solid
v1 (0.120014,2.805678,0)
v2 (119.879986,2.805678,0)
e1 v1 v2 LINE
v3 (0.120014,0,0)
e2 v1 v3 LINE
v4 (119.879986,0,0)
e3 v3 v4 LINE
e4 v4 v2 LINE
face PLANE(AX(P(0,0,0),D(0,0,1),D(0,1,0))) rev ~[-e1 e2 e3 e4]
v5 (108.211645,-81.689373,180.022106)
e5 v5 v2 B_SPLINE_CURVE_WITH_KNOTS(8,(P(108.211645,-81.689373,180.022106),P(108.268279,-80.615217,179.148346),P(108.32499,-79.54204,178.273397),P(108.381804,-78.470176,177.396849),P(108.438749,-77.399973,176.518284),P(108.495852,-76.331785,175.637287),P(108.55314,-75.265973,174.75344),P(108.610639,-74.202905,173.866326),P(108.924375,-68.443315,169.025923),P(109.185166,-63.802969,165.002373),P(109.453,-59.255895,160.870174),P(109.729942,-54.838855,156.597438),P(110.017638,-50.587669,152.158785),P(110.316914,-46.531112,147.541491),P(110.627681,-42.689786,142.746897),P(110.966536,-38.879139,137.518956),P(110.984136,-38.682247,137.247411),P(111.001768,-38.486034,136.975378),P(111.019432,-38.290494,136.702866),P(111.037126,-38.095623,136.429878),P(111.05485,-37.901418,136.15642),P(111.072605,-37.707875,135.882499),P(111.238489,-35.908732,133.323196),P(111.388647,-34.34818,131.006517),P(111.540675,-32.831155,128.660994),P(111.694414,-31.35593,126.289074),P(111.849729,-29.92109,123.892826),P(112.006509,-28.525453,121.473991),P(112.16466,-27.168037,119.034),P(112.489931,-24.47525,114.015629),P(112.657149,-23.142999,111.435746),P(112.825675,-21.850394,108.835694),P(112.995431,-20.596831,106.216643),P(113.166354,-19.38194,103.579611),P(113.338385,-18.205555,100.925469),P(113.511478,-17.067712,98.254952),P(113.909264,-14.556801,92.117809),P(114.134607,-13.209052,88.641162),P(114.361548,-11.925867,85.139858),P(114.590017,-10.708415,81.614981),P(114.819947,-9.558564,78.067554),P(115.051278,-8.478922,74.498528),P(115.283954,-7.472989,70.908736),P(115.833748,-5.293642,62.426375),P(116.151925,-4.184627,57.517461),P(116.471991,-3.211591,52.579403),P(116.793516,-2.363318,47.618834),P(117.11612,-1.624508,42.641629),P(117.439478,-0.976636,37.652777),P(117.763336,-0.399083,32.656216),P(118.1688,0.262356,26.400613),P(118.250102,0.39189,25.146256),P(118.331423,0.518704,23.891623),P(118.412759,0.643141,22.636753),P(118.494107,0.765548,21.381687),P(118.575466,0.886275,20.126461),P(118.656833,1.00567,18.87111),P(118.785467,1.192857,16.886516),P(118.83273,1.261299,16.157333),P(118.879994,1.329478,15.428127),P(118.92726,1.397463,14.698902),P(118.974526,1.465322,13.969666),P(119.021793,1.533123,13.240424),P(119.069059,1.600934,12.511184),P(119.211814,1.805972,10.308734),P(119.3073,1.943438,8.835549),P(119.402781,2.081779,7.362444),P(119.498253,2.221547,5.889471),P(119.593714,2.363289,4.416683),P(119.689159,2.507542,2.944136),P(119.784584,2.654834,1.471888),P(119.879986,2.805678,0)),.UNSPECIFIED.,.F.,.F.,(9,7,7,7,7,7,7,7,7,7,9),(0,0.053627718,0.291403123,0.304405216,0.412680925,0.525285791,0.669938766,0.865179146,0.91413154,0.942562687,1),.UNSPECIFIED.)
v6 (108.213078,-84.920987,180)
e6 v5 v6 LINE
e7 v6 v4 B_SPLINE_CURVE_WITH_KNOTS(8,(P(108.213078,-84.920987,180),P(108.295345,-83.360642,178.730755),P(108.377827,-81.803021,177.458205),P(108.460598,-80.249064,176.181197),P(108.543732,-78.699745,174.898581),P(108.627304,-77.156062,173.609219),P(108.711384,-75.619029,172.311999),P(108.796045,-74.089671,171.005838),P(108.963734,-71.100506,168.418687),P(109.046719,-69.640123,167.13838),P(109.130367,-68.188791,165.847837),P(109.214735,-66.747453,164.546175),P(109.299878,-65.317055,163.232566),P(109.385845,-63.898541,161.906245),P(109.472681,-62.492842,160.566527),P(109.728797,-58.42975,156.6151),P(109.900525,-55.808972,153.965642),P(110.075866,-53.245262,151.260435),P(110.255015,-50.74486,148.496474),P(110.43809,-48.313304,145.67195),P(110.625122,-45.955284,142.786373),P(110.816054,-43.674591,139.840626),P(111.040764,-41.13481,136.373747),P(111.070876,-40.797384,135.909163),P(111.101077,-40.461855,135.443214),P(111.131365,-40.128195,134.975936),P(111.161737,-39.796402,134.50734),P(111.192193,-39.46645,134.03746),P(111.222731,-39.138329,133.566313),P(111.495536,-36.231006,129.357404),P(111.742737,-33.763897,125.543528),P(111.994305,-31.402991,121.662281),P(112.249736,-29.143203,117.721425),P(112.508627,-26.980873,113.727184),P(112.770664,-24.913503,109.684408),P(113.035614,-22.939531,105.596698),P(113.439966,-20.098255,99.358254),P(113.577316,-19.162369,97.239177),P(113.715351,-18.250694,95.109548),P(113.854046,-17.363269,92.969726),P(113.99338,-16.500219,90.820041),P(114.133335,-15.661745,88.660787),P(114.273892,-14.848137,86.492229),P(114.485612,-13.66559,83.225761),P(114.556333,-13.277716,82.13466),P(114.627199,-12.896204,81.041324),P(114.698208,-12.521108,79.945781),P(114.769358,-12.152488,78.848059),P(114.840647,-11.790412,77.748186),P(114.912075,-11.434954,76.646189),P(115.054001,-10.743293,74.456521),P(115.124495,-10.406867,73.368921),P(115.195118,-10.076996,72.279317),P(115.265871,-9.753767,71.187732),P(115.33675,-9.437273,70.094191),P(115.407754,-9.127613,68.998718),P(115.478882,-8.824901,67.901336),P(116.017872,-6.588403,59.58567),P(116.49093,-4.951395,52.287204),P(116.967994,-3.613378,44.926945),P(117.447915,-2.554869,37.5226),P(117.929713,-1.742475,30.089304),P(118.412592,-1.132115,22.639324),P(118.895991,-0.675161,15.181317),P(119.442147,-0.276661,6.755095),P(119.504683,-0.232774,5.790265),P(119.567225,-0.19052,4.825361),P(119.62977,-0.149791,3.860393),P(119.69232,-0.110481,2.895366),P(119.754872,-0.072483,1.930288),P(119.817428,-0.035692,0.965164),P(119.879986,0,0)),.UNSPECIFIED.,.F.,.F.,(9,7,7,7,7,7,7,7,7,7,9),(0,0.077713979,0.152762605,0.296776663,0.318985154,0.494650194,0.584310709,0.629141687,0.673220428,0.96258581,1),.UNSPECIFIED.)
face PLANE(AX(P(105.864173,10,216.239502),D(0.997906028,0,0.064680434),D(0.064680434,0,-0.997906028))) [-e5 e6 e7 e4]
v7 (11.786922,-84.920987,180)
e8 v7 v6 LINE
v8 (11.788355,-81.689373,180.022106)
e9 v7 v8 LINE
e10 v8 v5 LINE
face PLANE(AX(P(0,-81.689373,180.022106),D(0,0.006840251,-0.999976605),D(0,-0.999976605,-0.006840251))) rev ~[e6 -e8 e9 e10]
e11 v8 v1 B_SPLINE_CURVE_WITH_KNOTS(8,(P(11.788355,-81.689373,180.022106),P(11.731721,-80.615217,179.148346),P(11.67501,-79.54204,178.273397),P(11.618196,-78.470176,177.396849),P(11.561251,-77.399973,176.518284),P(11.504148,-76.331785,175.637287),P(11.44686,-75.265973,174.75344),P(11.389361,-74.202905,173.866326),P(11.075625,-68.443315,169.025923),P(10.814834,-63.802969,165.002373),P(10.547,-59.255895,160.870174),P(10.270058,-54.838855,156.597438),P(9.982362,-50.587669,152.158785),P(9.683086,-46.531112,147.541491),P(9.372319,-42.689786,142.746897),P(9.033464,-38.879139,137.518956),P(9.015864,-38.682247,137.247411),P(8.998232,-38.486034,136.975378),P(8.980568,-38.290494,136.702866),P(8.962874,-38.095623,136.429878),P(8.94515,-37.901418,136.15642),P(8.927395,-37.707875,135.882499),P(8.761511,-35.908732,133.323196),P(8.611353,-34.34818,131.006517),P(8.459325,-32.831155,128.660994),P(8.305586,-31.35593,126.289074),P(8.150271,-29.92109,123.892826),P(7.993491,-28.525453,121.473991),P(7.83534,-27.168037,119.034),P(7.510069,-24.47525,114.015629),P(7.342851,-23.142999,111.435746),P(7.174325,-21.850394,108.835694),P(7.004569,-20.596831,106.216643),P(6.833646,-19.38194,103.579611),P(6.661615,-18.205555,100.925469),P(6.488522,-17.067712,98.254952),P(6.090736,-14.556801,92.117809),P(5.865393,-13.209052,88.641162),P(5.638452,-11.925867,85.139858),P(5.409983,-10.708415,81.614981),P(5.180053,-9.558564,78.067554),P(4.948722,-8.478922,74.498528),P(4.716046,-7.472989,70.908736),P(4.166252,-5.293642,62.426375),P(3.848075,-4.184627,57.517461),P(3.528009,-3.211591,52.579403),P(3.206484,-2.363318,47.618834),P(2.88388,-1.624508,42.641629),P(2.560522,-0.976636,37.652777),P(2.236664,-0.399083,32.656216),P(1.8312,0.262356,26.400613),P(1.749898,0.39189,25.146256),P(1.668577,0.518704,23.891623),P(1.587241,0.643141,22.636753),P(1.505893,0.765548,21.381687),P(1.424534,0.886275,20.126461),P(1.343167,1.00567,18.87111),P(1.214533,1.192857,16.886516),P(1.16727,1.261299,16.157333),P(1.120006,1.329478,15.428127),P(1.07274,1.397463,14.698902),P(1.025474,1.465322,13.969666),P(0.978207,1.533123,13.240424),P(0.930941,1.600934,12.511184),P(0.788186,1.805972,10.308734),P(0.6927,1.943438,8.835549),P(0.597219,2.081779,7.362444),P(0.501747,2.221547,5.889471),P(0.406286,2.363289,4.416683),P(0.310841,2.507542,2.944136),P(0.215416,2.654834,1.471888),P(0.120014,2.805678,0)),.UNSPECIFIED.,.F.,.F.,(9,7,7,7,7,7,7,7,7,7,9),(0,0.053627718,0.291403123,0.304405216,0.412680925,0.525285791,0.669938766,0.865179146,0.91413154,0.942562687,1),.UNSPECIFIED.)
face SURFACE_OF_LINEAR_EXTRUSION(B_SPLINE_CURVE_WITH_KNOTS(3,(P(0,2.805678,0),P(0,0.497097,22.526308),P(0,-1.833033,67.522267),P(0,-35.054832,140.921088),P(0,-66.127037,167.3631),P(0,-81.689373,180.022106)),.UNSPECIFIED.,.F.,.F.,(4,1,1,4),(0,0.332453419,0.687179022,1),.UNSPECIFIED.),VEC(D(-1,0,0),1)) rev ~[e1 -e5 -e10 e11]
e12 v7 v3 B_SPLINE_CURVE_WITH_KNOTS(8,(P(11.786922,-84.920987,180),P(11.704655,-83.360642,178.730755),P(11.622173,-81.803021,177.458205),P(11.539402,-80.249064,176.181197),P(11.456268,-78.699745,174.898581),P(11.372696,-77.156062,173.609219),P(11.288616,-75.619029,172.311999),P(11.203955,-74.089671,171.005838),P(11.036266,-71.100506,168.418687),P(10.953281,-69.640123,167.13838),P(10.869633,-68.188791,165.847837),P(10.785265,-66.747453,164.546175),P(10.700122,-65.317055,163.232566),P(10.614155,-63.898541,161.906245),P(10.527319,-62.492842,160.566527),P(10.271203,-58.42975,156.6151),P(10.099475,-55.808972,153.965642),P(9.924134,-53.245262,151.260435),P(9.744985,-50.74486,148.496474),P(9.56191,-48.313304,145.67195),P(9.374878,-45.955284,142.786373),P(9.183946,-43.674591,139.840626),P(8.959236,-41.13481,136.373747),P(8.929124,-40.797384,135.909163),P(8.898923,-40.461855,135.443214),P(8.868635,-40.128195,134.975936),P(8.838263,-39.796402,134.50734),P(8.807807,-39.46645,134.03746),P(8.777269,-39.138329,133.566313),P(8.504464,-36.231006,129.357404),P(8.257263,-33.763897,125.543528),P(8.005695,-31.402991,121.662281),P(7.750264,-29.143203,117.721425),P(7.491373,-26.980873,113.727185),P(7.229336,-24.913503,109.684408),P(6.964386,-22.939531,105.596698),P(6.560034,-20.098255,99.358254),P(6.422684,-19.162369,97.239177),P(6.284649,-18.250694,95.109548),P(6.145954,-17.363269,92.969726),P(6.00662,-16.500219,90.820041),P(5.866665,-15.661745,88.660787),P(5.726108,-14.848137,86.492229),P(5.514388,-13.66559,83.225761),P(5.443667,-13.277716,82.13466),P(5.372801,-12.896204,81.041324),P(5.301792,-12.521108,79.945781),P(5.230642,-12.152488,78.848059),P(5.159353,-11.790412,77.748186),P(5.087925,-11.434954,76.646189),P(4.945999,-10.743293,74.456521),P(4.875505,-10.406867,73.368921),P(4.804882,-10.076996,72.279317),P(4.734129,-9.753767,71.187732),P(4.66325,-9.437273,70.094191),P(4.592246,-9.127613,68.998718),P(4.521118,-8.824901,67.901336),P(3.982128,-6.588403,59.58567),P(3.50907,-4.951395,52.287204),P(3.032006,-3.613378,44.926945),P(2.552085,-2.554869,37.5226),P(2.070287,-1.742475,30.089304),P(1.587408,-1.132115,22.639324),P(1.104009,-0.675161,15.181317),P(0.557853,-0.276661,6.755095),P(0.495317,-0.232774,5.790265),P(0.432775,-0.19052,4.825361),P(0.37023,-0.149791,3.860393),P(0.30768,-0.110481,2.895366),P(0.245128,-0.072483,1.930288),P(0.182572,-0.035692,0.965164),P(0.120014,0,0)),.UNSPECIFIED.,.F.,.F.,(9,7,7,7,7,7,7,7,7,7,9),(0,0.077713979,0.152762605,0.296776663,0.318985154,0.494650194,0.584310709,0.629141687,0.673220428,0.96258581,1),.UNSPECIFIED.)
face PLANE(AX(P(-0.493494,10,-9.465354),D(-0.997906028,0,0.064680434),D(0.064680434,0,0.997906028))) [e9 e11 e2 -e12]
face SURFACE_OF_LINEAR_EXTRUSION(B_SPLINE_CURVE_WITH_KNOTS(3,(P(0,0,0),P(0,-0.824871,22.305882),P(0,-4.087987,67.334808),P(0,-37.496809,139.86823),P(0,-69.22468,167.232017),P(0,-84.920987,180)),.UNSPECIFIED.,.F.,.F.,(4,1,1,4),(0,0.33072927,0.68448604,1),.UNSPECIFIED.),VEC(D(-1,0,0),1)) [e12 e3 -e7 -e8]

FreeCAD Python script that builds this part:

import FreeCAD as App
import Part
import Sketcher
from FreeCAD import Vector
Q = App.Units.Quantity

doc = App.newDocument("Part")
body = doc.addObject("PartDesign::Body", "Body")

sketch1 = body.newObject("Sketcher::SketchObject", "Sketch")
sketch1.AttachmentSupport = (doc.getObject("YZ_Plane"), [""])
sketch1.MapMode = "FlatFace"
sketch1.addGeometry(Part.BSplineCurve([Vector(0, 0, 0), Vector(-0.824871, 22.305882, 0), Vector(-4.087987, 67.334808, 0), Vector(-37.496809, 139.86823, 0), Vector(-69.22468, 167.232017, 0), Vector(-84.920987, 180, 0)], [4, 1, 1, 4], [0, 0.33072927, 0.68448604, 1], False, 3, [1, 1, 1, 1, 1, 1], False), False)
sketch1.addGeometry(Part.LineSegment(Vector(0, 0, 0), Vector(2.805678, 0, 0)), False)
sketch1.addGeometry(Part.BSplineCurve([Vector(2.805678, 0, 0), Vector(0.497097, 22.526308, 0), Vector(-1.833033, 67.522267, 0), Vector(-35.054832, 140.921088, 0), Vector(-66.127037, 167.3631, 0), Vector(-81.689373, 180.022106, 0)], [4, 1, 1, 4], [0, 0.332453419, 0.687179022, 1], False, 3, [1, 1, 1, 1, 1, 1], False), False)
sketch1.addGeometry(Part.LineSegment(Vector(-81.689373, 180.022106, 0), Vector(-84.920987, 180, 0)), False)
sketch1.addConstraint(Sketcher.Constraint("Block", 0))
sketch1.addConstraint(Sketcher.Constraint("Block", 2))
sketch1.addConstraint(Sketcher.Constraint("Coincident", 0, 1, 1, 1))
sketch1.addConstraint(Sketcher.Constraint("Coincident", 1, 2, 2, 1))
sketch1.addConstraint(Sketcher.Constraint("Coincident", 2, 2, 3, 1))
sketch1.addConstraint(Sketcher.Constraint("Coincident", 3, 2, 0, 2))
pad1 = body.newObject("PartDesign::Pad", "Pad")
pad1.Profile = sketch1
pad1.Length = 120

sketch2 = body.newObject("Sketcher::SketchObject", "Sketch001")
sketch2.AttachmentSupport = (doc.getObject("XZ_Plane"), [""])
sketch2.MapMode = "FlatFace"
sketch2.AttachmentOffset = App.Placement(Vector(0, 0, -10), App.Rotation())
sketch2.addGeometry(Part.LineSegment(Vector(106, 216, 0), Vector(120, -9, 0)), False)
sketch2.addGeometry(Part.LineSegment(Vector(120, -9, 0), Vector(140, -6, 0)), False)
sketch2.addGeometry(Part.LineSegment(Vector(140, -6, 0), Vector(140, 216, 0)), False)
sketch2.addGeometry(Part.LineSegment(Vector(140, 216, 0), Vector(106, 216, 0)), False)
sketch2.addGeometry(Part.LineSegment(Vector(-20, -6, 0), Vector(0, -9, 0)), False)
sketch2.addGeometry(Part.LineSegment(Vector(0, -9, 0), Vector(14, 216, 0)), False)
sketch2.addGeometry(Part.LineSegment(Vector(14, 216, 0), Vector(-20, 216, 0)), False)
sketch2.addGeometry(Part.LineSegment(Vector(-20, 216, 0), Vector(-20, -6, 0)), False)
sketch2.addConstraint(Sketcher.Constraint("Coincident", 0, 2, 1, 1))
sketch2.addConstraint(Sketcher.Constraint("Coincident", 1, 2, 2, 1))
sketch2.addConstraint(Sketcher.Constraint("Coincident", 2, 2, 3, 1))
sketch2.addConstraint(Sketcher.Constraint("Coincident", 3, 2, 0, 1))
sketch2.addConstraint(Sketcher.Constraint("Coincident", 4, 2, 5, 1))
sketch2.addConstraint(Sketcher.Constraint("Coincident", 5, 2, 6, 1))
sketch2.addConstraint(Sketcher.Constraint("Coincident", 6, 2, 7, 1))
sketch2.addConstraint(Sketcher.Constraint("Coincident", 7, 2, 4, 1))
sketch2.addConstraint(Sketcher.Constraint("Vertical", 2))
sketch2.addConstraint(Sketcher.Constraint("Horizontal", 3))
sketch2.addConstraint(Sketcher.Constraint("Horizontal", 6))
sketch2.addConstraint(Sketcher.Constraint("Vertical", 7))
sketch2.addConstraint(Sketcher.Constraint("Horizontal", 0, 2, 4, 2))
sketch2.addConstraint(Sketcher.Constraint("Horizontal", 3, 2, 5, 2))
sketch2.addConstraint(Sketcher.Constraint("Horizontal", 1, 2, 7, 2))
sketch2.addConstraint(Sketcher.Constraint("Equal", 3, 6))
sketch2.addConstraint(Sketcher.Constraint("Equal", 1, 4))
sketch2.addConstraint(Sketcher.Constraint("DistanceX", -1, 1, 1, 2, Q("140 mm")))
sketch2.addConstraint(Sketcher.Constraint("DistanceX", 6, 2, -1, 1, Q("20 mm")))
sketch2.addConstraint(Sketcher.Constraint("DistanceY", 2, 1, 2, 2, Q("221.89365 mm")))
sketch2.addConstraint(Sketcher.Constraint("DistanceY", -1, 1, 2, 2, Q("216.239502 mm")))
sketch2.addConstraint(Sketcher.Constraint("Distance", 1, Q("19.875338 mm")))
sketch2.addConstraint(Sketcher.Constraint("DistanceX", 3, 2, 3, 1, Q("34.135827 mm")))
sketch2.addConstraint(Sketcher.Constraint("DistanceX", 3, 2, 0, 2, Q("14.629321 mm")))
pocket1 = body.newObject("PartDesign::Pocket", "Pocket")
pocket1.Profile = sketch2
pocket1.Length = 150
pocket1.Reversed = True

doc.recompute()
